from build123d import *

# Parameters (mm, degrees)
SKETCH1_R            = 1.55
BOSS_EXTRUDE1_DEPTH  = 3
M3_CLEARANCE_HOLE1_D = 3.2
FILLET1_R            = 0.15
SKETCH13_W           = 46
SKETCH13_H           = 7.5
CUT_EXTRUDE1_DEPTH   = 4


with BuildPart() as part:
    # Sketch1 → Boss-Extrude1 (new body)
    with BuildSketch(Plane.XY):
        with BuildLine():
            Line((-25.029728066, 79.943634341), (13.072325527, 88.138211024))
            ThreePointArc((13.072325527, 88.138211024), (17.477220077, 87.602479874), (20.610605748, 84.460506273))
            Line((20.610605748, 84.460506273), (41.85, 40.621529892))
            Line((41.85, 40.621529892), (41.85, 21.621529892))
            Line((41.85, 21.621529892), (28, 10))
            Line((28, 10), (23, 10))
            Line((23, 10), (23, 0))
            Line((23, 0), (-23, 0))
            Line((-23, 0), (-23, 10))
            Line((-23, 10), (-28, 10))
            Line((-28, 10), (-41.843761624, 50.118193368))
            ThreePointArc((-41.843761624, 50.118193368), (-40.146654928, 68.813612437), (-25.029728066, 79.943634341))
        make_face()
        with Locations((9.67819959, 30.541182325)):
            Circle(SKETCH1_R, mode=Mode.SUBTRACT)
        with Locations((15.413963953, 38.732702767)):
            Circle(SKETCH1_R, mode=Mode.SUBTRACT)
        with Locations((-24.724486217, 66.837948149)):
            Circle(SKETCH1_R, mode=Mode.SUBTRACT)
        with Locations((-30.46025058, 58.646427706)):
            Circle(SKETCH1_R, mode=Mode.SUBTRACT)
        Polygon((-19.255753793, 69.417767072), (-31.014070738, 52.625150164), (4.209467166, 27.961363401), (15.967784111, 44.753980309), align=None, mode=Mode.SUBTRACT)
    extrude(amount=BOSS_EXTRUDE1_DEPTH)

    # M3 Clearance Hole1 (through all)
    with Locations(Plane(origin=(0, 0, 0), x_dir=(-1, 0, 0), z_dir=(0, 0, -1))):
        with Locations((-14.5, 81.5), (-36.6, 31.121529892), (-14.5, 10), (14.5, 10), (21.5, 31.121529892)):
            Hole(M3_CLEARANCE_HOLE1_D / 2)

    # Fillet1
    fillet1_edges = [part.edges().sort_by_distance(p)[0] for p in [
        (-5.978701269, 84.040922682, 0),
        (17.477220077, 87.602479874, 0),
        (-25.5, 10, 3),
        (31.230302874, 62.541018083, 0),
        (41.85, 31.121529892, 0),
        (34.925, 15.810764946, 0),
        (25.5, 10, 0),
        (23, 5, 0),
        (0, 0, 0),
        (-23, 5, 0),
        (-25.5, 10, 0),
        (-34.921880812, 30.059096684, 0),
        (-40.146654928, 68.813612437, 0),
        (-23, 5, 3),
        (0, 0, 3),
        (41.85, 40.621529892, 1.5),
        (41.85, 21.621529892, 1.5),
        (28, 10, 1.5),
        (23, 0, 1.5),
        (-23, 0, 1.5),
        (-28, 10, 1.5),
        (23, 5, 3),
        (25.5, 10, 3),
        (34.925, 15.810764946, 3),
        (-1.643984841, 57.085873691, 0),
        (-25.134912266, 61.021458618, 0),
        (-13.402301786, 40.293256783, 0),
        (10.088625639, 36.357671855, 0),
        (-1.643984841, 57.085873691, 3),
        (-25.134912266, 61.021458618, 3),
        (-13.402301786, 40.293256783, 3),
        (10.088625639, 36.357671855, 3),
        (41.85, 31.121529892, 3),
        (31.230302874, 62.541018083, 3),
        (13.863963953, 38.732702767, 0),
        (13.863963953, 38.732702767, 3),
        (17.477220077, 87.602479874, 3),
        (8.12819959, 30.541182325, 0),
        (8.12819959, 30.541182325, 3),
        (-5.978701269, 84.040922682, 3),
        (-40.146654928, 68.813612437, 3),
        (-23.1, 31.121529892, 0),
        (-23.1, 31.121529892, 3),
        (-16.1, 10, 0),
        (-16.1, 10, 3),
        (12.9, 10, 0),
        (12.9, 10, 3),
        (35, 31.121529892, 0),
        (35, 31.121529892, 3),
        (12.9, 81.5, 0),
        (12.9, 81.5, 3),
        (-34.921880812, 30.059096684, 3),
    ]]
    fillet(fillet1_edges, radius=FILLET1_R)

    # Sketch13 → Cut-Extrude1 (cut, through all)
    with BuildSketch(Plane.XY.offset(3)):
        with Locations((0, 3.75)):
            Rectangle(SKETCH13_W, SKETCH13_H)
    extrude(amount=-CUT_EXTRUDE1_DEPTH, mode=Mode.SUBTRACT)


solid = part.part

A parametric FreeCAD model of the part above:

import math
import FreeCAD as App
import Part
import Sketcher

V = App.Vector
Q = App.Units.Quantity


def edges_at(feature, points):
    """Names of the edges that pass closest to the given points."""
    edges = feature.Shape.Edges
    near = lambda p: min(range(len(edges)), key=lambda i: edges[i].distToShape(Part.Vertex(*p))[0])
    return sorted({f"Edge{near(p) + 1}" for p in points})


def add_polygon(sketch, points):
    """Adds a closed chain of lines whose ends are joined by coincident constraints."""
    first, n = sketch.GeometryCount, len(points)
    for a, b in zip(points, points[1:] + points[:1]):
        sketch.addGeometry(Part.LineSegment(App.Vector(*a, 0), App.Vector(*b, 0)), False)
    for i in range(n):
        sketch.addConstraint(Sketcher.Constraint("Coincident", first + i, 2, first + (i + 1) % n, 1))

doc = App.newDocument("Part")
body = doc.addObject("PartDesign::Body", "Body")

# Sketch on XY plane
sketch1 = body.newObject("Sketcher::SketchObject", "Sketch")
sketch1.AttachmentSupport = (doc.getObject("XY_Plane"), [""])
sketch1.MapMode = "FlatFace"
sketch1.addGeometry(Part.LineSegment(V(13.072326, 88.138211, 0), V(-25.029728, 79.943634, 0)), False)  # 0
sketch1.addGeometry(Part.ArcOfCircle(Part.Circle(V(-20.22, 57.58, 0), V(0, 0, 1), 22.875), math.radians(102.137668), math.radians(199.038244)), False)  # 1
sketch1.addGeometry(Part.LineSegment(V(-41.843762, 50.118193, 0), V(-28, 10, 0)), False)  # 2
sketch1.addGeometry(Part.LineSegment(V(-28, 10, 0), V(-23, 10, 0)), False)  # 3
sketch1.addGeometry(Part.LineSegment(V(-23, 10, 0), V(-23, 0, 0)), False)  # 4
sketch1.addGeometry(Part.LineSegment(V(-23, 0, 0), V(23, 0, 0)), False)  # 5
sketch1.addGeometry(Part.LineSegment(V(23, 0, 0), V(23, 10, 0)), False)  # 6
sketch1.addGeometry(Part.LineSegment(V(23, 10, 0), V(28, 10, 0)), False)  # 7
sketch1.addGeometry(Part.LineSegment(V(28, 10, 0), V(41.85, 21.62153, 0)), False)  # 8
sketch1.addGeometry(Part.LineSegment(V(41.85, 21.62153, 0), V(41.85, 40.62153, 0)), False)  # 9
sketch1.addGeometry(Part.LineSegment(V(41.85, 40.62153, 0), V(20.610606, 84.460506, 0)), False)  # 10
sketch1.addGeometry(Part.ArcOfCircle(Part.Circle(V(14.5, 81.5, 0), V(0, 0, 1), 6.79), math.radians(25.849564), math.radians(102.137668)), False)  # 11
sketch1.addGeometry(Part.Circle(V(9.6782, 30.541182, 0), V(0, 0, 1), 1.55), False)  # 12
sketch1.addGeometry(Part.Circle(V(15.413964, 38.732703, 0), V(0, 0, 1), 1.55), False)  # 13
add_polygon(sketch1, [(-19.255754, 69.417767), (15.967784, 44.75398), (4.209467, 27.961363), (-31.014071, 52.62515)])  # lines 14-17
sketch1.addGeometry(Part.Circle(V(-30.460251, 58.646428, 0), V(0, 0, 1), 1.55), False)  # 18
sketch1.addGeometry(Part.Circle(V(-24.724486, 66.837948, 0), V(0, 0, 1), 1.55), False)  # 19
sketch1.addConstraint([
    Sketcher.Constraint("Tangent", 0, 2, 1, 1),
    Sketcher.Constraint("Tangent", 1, 2, 2, 1),
    Sketcher.Constraint("Coincident", 2, 2, 3, 1),
    Sketcher.Constraint("Coincident", 3, 2, 4, 1),
    Sketcher.Constraint("Coincident", 4, 2, 5, 1),
    Sketcher.Constraint("Coincident", 5, 2, 6, 1),
    Sketcher.Constraint("Coincident", 6, 2, 7, 1),
    Sketcher.Constraint("Coincident", 7, 2, 8, 1),
    Sketcher.Constraint("Coincident", 8, 2, 9, 1),
    Sketcher.Constraint("Coincident", 9, 2, 10, 1),
    Sketcher.Constraint("Tangent", 10, 2, 11, 1),
    Sketcher.Constraint("Tangent", 11, 2, 0, 1),
    Sketcher.Constraint("Horizontal", 3),
    Sketcher.Constraint("Vertical", 4),
    Sketcher.Constraint("Horizontal", 5),
    Sketcher.Constraint("Vertical", 6),
    Sketcher.Constraint("Horizontal", 7),
    Sketcher.Constraint("Vertical", 9),
    Sketcher.Constraint("Equal", 12, 13),
    Sketcher.Constraint("Equal", 13, 18),
    Sketcher.Constraint("Equal", 18, 19),
    Sketcher.Constraint("Symmetric", 4, 2, 5, 2, -1, 1),
    Sketcher.Constraint("Symmetric", 2, 2, 7, 2, -2),
    Sketcher.Constraint("Perpendicular", 14, 15),
    Sketcher.Constraint("Perpendicular", 15, 16),
    Sketcher.Constraint("Perpendicular", 16, 17),
    Sketcher.Constraint("Diameter", 12, 3.1),
    Sketcher.Constraint("DistanceX", 3, 1, 3, 2, 5.0),
    Sketcher.Constraint("DistanceX", 5, 1, 5, 2, 46.0),
    Sketcher.Constraint("DistanceY", 4, 2, 4, 1, 10.0),
    Sketcher.Constraint("DistanceY", 9, 1, 9, 2, 19.0),
    Sketcher.Constraint("Angle", 8, Q("40 deg")),
    Sketcher.Constraint("Angle", 14, Q("-35 deg")),
    Sketcher.Constraint("Radius", 11, 6.79),
    Sketcher.Constraint("Distance", 14, 43.0),
    Sketcher.Constraint("Radius", 1, 22.875),
    Sketcher.Constraint("Distance", 15, 20.5),
    Sketcher.Constraint("DistanceX", -1, 1, 11, 3, 14.5),
    Sketcher.Constraint("DistanceY", -1, 1, 11, 3, 81.5),
    Sketcher.Constraint("DistanceX", 1, 3, -1, 1, 20.22),
    Sketcher.Constraint("DistanceY", -1, 1, 1, 3, 57.58),
    Sketcher.Constraint("DistanceX", -1, 1, 8, 2, 41.85),
    Sketcher.Constraint("DistanceX", -1, 1, 12, 3, 9.6782),
    Sketcher.Constraint("DistanceX", 18, 3, -1, 1, 30.460251),
    Sketcher.Constraint("DistanceY", -1, 1, 19, 3, 66.837948),
    Sketcher.Constraint("DistanceY", -1, 1, 14, 2, 44.75398),
    Sketcher.Constraint("DistanceX", 16, 2, -1, 1, 31.014071),
    Sketcher.Constraint("DistanceY", 12, 3, 13, 3, 8.19152),
    Sketcher.Constraint("DistanceY", 18, 3, 19, 3, 8.19152),
    Sketcher.Constraint("DistanceX", 19, 3, 13, 3, 40.13845),
    Sketcher.Constraint("DistanceX", 0, 2, 19, 3, 0.305242),
    Sketcher.Constraint("DistanceY", 13, 3, 0, 2, 41.210932),
])
pad1 = body.newObject("PartDesign::Pad", "Pad")
pad1.Profile = sketch1
pad1.Length = 3

# Sketch on XY plane
sketch2 = body.newObject("Sketcher::SketchObject", "Sketch001")
sketch2.AttachmentSupport = (doc.getObject("XY_Plane"), [""])
sketch2.MapMode = "FlatFace"
sketch2.addGeometry([
    Part.Circle(V(14.5, 81.5, 0), V(0, 0, 1), 1.6),  # 0
    Part.Circle(V(36.6, 31.12153, 0), V(0, 0, 1), 1.6),  # 1
    Part.Circle(V(14.5, 10, 0), V(0, 0, 1), 1.6),  # 2
    Part.Circle(V(-14.5, 10, 0), V(0, 0, 1), 1.6),  # 3
    Part.Circle(V(-21.5, 31.12153, 0), V(0, 0, 1), 1.6),  # 4
], False)
sketch2.addConstraint([
    Sketcher.Constraint("Equal", 0, 1),
    Sketcher.Constraint("Equal", 1, 2),
    Sketcher.Constraint("Equal", 2, 3),
    Sketcher.Constraint("Equal", 3, 4),
    Sketcher.Constraint("Symmetric", 2, 3, 3, 3, -2),
    Sketcher.Constraint("Horizontal", 1, 3, 4, 3),
    Sketcher.Constraint("Vertical", 0, 3, 2, 3),
    Sketcher.Constraint("Diameter", 0, 3.2),
    Sketcher.Constraint("DistanceY", -1, 1, 2, 3, 10.0),
    Sketcher.Constraint("DistanceX", 3, 3, 2, 3, 29.0),
    Sketcher.Constraint("DistanceX", 4, 3, 3, 3, 7.0),
    Sketcher.Constraint("DistanceY", -1, 1, 0, 3, 81.5),
    Sketcher.Constraint("DistanceX", -1, 1, 1, 3, 36.6),
    Sketcher.Constraint("DistanceY", -1, 1, 1, 3, 31.12153),
])
doc.recompute()
hole = body.newObject("PartDesign::Hole", "Hole")
hole.Profile = sketch2
hole.ThreadType = "None"
hole.Diameter = 3.2
hole.DepthType = "ThroughAll"
hole.Reversed = True
doc.recompute()

fillet = body.newObject("PartDesign::Fillet", "Fillet")
fillet.Base = (hole, edges_at(hole, [
    (-5.979, 84.041, 0),
    (17.477, 87.602, 0),
    (-25.5, 10, 3),
    (31.23, 62.541, 0),
    (41.85, 31.122, 0),
    (34.925, 15.811, 0),
    (25.5, 10, 0),
    (23, 5, 0),
    (0, 0, 0),
    (-23, 5, 0),
    (-25.5, 10, 0),
    (-34.922, 30.059, 0),
    (-40.147, 68.814, 0),
    (-23, 5, 3),
    (0, 0, 3),
    (41.85, 40.622, 1.5),
    (41.85, 21.622, 1.5),
    (28, 10, 1.5),
    (23, 0, 1.5),
    (-23, 0, 1.5),
    (-28, 10, 1.5),
    (23, 5, 3),
    (25.5, 10, 3),
    (34.925, 15.811, 3),
    (-1.644, 57.086, 0),
    (-25.135, 61.021, 0),
    (-13.402, 40.293, 0),
    (10.089, 36.358, 0),
    (-1.644, 57.086, 3),
    (-25.135, 61.021, 3),
    (-13.402, 40.293, 3),
    (10.089, 36.358, 3),
    (41.85, 31.122, 3),
    (31.23, 62.541, 3),
    (13.864, 38.733, 0),
    (13.864, 38.733, 3),
    (17.477, 87.602, 3),
    (8.128, 30.541, 0),
    (8.128, 30.541, 3),
    (-5.979, 84.041, 3),
    (-40.147, 68.814, 3),
    (-23.1, 31.122, 0),
    (-23.1, 31.122, 3),
    (-16.1, 10, 0),
    (-16.1, 10, 3),
    (12.9, 10, 0),
    (12.9, 10, 3),
    (35, 31.122, 0),
    (35, 31.122, 3),
    (12.9, 81.5, 0),
    (12.9, 81.5, 3),
    (-34.922, 30.059, 3),
]))
fillet.Radius = 0.15

# Sketch on XY plane
sketch3 = body.newObject("Sketcher::SketchObject", "Sketch002")
sketch3.AttachmentSupport = (doc.getObject("XY_Plane"), [""])
sketch3.MapMode = "FlatFace"
sketch3.AttachmentOffset = App.Placement(V(0, 0, 3), App.Rotation())
add_polygon(sketch3, [(-23, 7.5), (-23, 0), (23, 0), (23, 7.5)])  # lines 0-3
sketch3.addConstraint([
    Sketcher.Constraint("Vertical", 0),
    Sketcher.Constraint("Horizontal", 1),
    Sketcher.Constraint("Vertical", 2),
    Sketcher.Constraint("Horizontal", 3),
    Sketcher.Constraint("Symmetric", 0, 2, 1, 2, -1, 1),
    Sketcher.Constraint("DistanceX", 1, 1, 1, 2, 46.0),
    Sketcher.Constraint("DistanceY", 0, 2, 0, 1, 7.5),
])
pocket1 = body.newObject("PartDesign::Pocket", "Pocket")
pocket1.Profile = sketch3
pocket1.Type = "ThroughAll"

doc.recompute()
